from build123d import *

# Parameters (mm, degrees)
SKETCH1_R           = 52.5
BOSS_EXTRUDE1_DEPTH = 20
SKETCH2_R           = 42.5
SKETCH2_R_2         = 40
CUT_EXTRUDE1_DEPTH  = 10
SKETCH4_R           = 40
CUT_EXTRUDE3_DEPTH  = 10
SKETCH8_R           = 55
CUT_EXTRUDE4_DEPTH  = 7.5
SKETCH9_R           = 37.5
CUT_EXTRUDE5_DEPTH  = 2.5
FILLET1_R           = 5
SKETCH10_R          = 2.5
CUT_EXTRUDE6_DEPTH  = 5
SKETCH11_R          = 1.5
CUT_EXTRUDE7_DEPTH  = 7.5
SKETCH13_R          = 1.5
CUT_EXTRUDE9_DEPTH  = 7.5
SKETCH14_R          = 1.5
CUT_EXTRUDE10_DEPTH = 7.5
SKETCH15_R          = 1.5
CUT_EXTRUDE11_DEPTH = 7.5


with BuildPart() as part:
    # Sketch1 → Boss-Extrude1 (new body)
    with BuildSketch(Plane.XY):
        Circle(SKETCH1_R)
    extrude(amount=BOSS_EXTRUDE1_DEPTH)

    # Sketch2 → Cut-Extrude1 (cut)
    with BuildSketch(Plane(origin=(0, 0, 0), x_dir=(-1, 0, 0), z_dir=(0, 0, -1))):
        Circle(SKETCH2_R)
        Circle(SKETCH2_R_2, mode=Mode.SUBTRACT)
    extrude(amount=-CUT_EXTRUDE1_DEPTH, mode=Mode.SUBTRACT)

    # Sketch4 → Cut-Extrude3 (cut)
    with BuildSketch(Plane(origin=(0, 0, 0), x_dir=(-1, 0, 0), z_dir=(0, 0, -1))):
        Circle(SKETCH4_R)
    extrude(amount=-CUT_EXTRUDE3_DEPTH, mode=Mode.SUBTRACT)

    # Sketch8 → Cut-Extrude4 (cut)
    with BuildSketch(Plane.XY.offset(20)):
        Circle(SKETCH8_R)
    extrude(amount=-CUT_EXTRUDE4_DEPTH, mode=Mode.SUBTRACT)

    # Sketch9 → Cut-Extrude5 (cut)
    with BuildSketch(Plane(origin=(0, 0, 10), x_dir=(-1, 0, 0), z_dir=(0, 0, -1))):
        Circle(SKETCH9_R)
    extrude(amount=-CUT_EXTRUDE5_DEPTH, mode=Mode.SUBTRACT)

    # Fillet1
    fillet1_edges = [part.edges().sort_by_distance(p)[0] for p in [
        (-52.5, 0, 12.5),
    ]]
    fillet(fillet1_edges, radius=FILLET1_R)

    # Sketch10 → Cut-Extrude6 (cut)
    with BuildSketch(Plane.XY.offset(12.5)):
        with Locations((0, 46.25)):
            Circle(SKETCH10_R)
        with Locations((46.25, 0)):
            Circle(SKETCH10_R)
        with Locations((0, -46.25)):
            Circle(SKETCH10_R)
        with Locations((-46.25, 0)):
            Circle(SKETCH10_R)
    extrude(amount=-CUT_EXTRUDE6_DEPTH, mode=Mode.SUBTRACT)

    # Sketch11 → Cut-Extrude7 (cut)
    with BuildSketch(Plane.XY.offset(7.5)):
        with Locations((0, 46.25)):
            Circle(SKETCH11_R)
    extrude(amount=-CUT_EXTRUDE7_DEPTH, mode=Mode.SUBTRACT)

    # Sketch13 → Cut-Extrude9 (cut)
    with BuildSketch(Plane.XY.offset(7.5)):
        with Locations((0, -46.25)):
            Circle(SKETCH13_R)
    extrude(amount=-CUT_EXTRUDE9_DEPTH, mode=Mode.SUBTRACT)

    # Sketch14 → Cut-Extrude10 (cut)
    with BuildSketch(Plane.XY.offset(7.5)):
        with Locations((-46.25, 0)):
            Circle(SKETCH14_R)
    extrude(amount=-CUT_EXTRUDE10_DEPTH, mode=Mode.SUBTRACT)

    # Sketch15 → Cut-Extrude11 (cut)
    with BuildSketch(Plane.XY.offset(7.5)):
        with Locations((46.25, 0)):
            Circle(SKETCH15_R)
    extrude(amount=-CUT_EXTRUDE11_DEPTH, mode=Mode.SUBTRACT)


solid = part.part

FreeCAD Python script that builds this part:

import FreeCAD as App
import Part
import Sketcher
from FreeCAD import Vector


def edges_at(feature, points):
    """Names of the edges that pass closest to the given points."""
    edges = feature.Shape.Edges
    near = lambda p: min(range(len(edges)), key=lambda i: edges[i].distToShape(Part.Vertex(*p))[0])
    return sorted({f"Edge{near(p) + 1}" for p in points})

doc = App.newDocument("Part")
params = doc.addObject("Spreadsheet::Sheet", "Params")
for row, (alias, value) in enumerate([
    ("sketch1_diameter", "105 mm"),
    ("pad1_length", "20 mm"),
    ("sketch2_diameter", "85 mm"),
    ("sketch2_diameter2", "80 mm"),
    ("pocket1_length", "10 mm"),
    ("sketch3_diameter", "80 mm"),
    ("pocket2_length", "10 mm"),
    ("sketch4_diameter", "110 mm"),
    ("pocket3_length", "7.5 mm"),
    ("sketch5_diameter", "75 mm"),
    ("pocket4_length", "2.5 mm"),
    ("fillet_radius", "5 mm"),
    ("sketch6_diameter", "5 mm"),
    ("pocket5_length", "5 mm"),
    ("sketch7_diameter", "3 mm"),
    ("pocket6_length", "7.5 mm"),
    ("sketch8_diameter", "3 mm"),
    ("pocket7_length", "7.5 mm"),
    ("sketch9_diameter", "3 mm"),
    ("pocket8_length", "7.5 mm"),
    ("sketch10_diameter", "3 mm"),
    ("pocket9_length", "7.5 mm"),
], start=1):
    params.set(f"A{row}", alias)
    params.set(f"B{row}", "=" + value)
    params.setAlias(f"B{row}", alias)

body = doc.addObject("PartDesign::Body", "Body")

# Sketch on XY plane
sketch1 = doc.addObject("Sketcher::SketchObject", "Sketch")
body.addObject(sketch1)
sketch1.AttachmentSupport = (doc.XY_Plane, [""])
sketch1.MapMode = "FlatFace"
sketch1.addGeometry(Part.Circle(Vector(0, 0, 0), Vector(0, 0, 1), 52), False)
sketch1.addConstraint([
    Sketcher.Constraint("Coincident", 0, 3, -1, 1),
    Sketcher.Constraint("Diameter", 0, 105.0),
])
sketch1.setExpression("Constraints[1]", "Params.sketch1_diameter")
pad1 = doc.addObject("PartDesign::Pad", "Pad")
body.addObject(pad1)
pad1.Profile = sketch1
pad1.setExpression("Length", "Params.pad1_length")

# Sketch on XY plane
sketch2 = doc.addObject("Sketcher::SketchObject", "Sketch001")
body.addObject(sketch2)
sketch2.AttachmentSupport = (doc.XY_Plane, [""])
sketch2.MapMode = "FlatFace"
sketch2.addGeometry([
    Part.Circle(Vector(0, 0, 0), Vector(0, 0, 1), 42),
    Part.Circle(Vector(0, 0, 0), Vector(0, 0, 1), 40),
], False)
sketch2.addConstraint([
    Sketcher.Constraint("Coincident", 0, 3, -1, 1),
    Sketcher.Constraint("Coincident", 1, 3, -1, 1),
    Sketcher.Constraint("Diameter", 0, 85.0),
    Sketcher.Constraint("Diameter", 1, 80.0),
])
sketch2.setExpression("Constraints[2]", "Params.sketch2_diameter")
sketch2.setExpression("Constraints[3]", "Params.sketch2_diameter2")
pocket1 = doc.addObject("PartDesign::Pocket", "Pocket")
body.addObject(pocket1)
pocket1.Profile = sketch2
pocket1.setExpression("Length", "Params.pocket1_length")
pocket1.Reversed = True

# Sketch on XY plane
sketch3 = doc.addObject("Sketcher::SketchObject", "Sketch002")
body.addObject(sketch3)
sketch3.AttachmentSupport = (doc.XY_Plane, [""])
sketch3.MapMode = "FlatFace"
sketch3.addGeometry(Part.Circle(Vector(0, 0, 0), Vector(0, 0, 1), 40), False)
sketch3.addConstraint([
    Sketcher.Constraint("Coincident", 0, 3, -1, 1),
    Sketcher.Constraint("Diameter", 0, 80.0),
])
sketch3.setExpression("Constraints[1]", "Params.sketch3_diameter")
pocket2 = doc.addObject("PartDesign::Pocket", "Pocket001")
body.addObject(pocket2)
pocket2.Profile = sketch3
pocket2.setExpression("Length", "Params.pocket2_length")
pocket2.Reversed = True

# Sketch on XY plane
sketch4 = doc.addObject("Sketcher::SketchObject", "Sketch003")
body.addObject(sketch4)
sketch4.AttachmentSupport = (doc.XY_Plane, [""])
sketch4.MapMode = "FlatFace"
sketch4.AttachmentOffset = App.Placement(Vector(0, 0, 20), App.Rotation())
sketch4.addGeometry(Part.Circle(Vector(0, 0, 0), Vector(0, 0, 1), 55), False)
sketch4.addConstraint([
    Sketcher.Constraint("Coincident", 0, 3, -1, 1),
    Sketcher.Constraint("Diameter", 0, 110.0),
])
sketch4.setExpression("Constraints[1]", "Params.sketch4_diameter")
pocket3 = doc.addObject("PartDesign::Pocket", "Pocket002")
body.addObject(pocket3)
pocket3.Profile = sketch4
pocket3.setExpression("Length", "Params.pocket3_length")

# Sketch on XY plane
sketch5 = doc.addObject("Sketcher::SketchObject", "Sketch004")
body.addObject(sketch5)
sketch5.AttachmentSupport = (doc.XY_Plane, [""])
sketch5.MapMode = "FlatFace"
sketch5.AttachmentOffset = App.Placement(Vector(0, 0, 10), App.Rotation())
sketch5.addGeometry(Part.Circle(Vector(0, 0, 0), Vector(0, 0, 1), 38), False)
sketch5.addConstraint([
    Sketcher.Constraint("Coincident", 0, 3, -1, 1),
    Sketcher.Constraint("Diameter", 0, 75.0),
])
sketch5.setExpression("Constraints[1]", "Params.sketch5_diameter")
pocket4 = doc.addObject("PartDesign::Pocket", "Pocket003")
body.addObject(pocket4)
pocket4.Profile = sketch5
pocket4.setExpression("Length", "Params.pocket4_length")
pocket4.Reversed = True
doc.recompute()

fillet = doc.addObject("PartDesign::Fillet", "Fillet")
body.addObject(fillet)
fillet.Base = (pocket4, edges_at(pocket4, [(-52.5, 0, 12.5)]))
fillet.setExpression("Radius", "Params.fillet_radius")

# Sketch on XY plane
sketch6 = doc.addObject("Sketcher::SketchObject", "Sketch005")
body.addObject(sketch6)
sketch6.AttachmentSupport = (doc.XY_Plane, [""])
sketch6.MapMode = "FlatFace"
sketch6.AttachmentOffset = App.Placement(Vector(0, 0, 12.5), App.Rotation())
sketch6.addGeometry([
    Part.Circle(Vector(0, 46.2, 0), Vector(0, 0, 1), 2.5),
    Part.Circle(Vector(46.2, 0, 0), Vector(0, 0, 1), 2.5),
    Part.Circle(Vector(0, -46.2, 0), Vector(0, 0, 1), 2.5),
    Part.Circle(Vector(-46.2, 0, 0), Vector(0, 0, 1), 2.5),
], False)
sketch6.addConstraint([
    Sketcher.Constraint("Equal", 0, 1),
    Sketcher.Constraint("Equal", 1, 2),
    Sketcher.Constraint("Equal", 2, 3),
    Sketcher.Constraint("Symmetric", 0, 3, 2, 3, -1, 1),
    Sketcher.Constraint("Symmetric", 1, 3, 3, 3, -1, 1),
    Sketcher.Constraint("PointOnObject", 0, 3, -2),
    Sketcher.Constraint("PointOnObject", 1, 3, -1),
    Sketcher.Constraint("Diameter", 0, 5.0),
    Sketcher.Constraint("DistanceY", 2, 3, 0, 3, 92.5),
    Sketcher.Constraint("DistanceX", 3, 3, 1, 3, 92.5),
])
sketch6.setExpression("Constraints[7]", "Params.sketch6_diameter")
pocket5 = doc.addObject("PartDesign::Pocket", "Pocket004")
body.addObject(pocket5)
pocket5.Profile = sketch6
pocket5.setExpression("Length", "Params.pocket5_length")

# Sketch on XY plane
sketch7 = doc.addObject("Sketcher::SketchObject", "Sketch006")
body.addObject(sketch7)
sketch7.AttachmentSupport = (doc.XY_Plane, [""])
sketch7.MapMode = "FlatFace"
sketch7.AttachmentOffset = App.Placement(Vector(0, 0, 7.5), App.Rotation())
sketch7.addGeometry(Part.Circle(Vector(0, 46.2, 0), Vector(0, 0, 1), 1.5), False)
sketch7.addConstraint([
    Sketcher.Constraint("PointOnObject", 0, 3, -2),
    Sketcher.Constraint("Diameter", 0, 3.0),
    Sketcher.Constraint("DistanceY", -1, 1, 0, 3, 46.25),
])
sketch7.setExpression("Constraints[1]", "Params.sketch7_diameter")
pocket6 = doc.addObject("PartDesign::Pocket", "Pocket005")
body.addObject(pocket6)
pocket6.Profile = sketch7
pocket6.setExpression("Length", "Params.pocket6_length")

# Sketch on XY plane
sketch8 = doc.addObject("Sketcher::SketchObject", "Sketch007")
body.addObject(sketch8)
sketch8.AttachmentSupport = (doc.XY_Plane, [""])
sketch8.MapMode = "FlatFace"
sketch8.AttachmentOffset = App.Placement(Vector(0, 0, 7.5), App.Rotation())
sketch8.addGeometry(Part.Circle(Vector(0, -46.2, 0), Vector(0, 0, 1), 1.5), False)
sketch8.addConstraint([
    Sketcher.Constraint("PointOnObject", 0, 3, -2),
    Sketcher.Constraint("Diameter", 0, 3.0),
    Sketcher.Constraint("DistanceY", 0, 3, -1, 1, 46.25),
])
sketch8.setExpression("Constraints[1]", "Params.sketch8_diameter")
pocket7 = doc.addObject("PartDesign::Pocket", "Pocket006")
body.addObject(pocket7)
pocket7.Profile = sketch8
pocket7.setExpression("Length", "Params.pocket7_length")

# Sketch on XY plane
sketch9 = doc.addObject("Sketcher::SketchObject", "Sketch008")
body.addObject(sketch9)
sketch9.AttachmentSupport = (doc.XY_Plane, [""])
sketch9.MapMode = "FlatFace"
sketch9.AttachmentOffset = App.Placement(Vector(0, 0, 7.5), App.Rotation())
sketch9.addGeometry(Part.Circle(Vector(-46.2, 0, 0), Vector(0, 0, 1), 1.5), False)
sketch9.addConstraint([
    Sketcher.Constraint("PointOnObject", 0, 3, -1),
    Sketcher.Constraint("Diameter", 0, 3.0),
    Sketcher.Constraint("DistanceX", 0, 3, -1, 1, 46.25),
])
sketch9.setExpression("Constraints[1]", "Params.sketch9_diameter")
pocket8 = doc.addObject("PartDesign::Pocket", "Pocket007")
body.addObject(pocket8)
pocket8.Profile = sketch9
pocket8.setExpression("Length", "Params.pocket8_length")

# Sketch on XY plane
sketch10 = doc.addObject("Sketcher::SketchObject", "Sketch009")
body.addObject(sketch10)
sketch10.AttachmentSupport = (doc.XY_Plane, [""])
sketch10.MapMode = "FlatFace"
sketch10.AttachmentOffset = App.Placement(Vector(0, 0, 7.5), App.Rotation())
sketch10.addGeometry(Part.Circle(Vector(46.2, 0, 0), Vector(0, 0, 1), 1.5), False)
sketch10.addConstraint([
    Sketcher.Constraint("PointOnObject", 0, 3, -1),
    Sketcher.Constraint("Diameter", 0, 3.0),
    Sketcher.Constraint("DistanceX", -1, 1, 0, 3, 46.25),
])
sketch10.setExpression("Constraints[1]", "Params.sketch10_diameter")
pocket9 = doc.addObject("PartDesign::Pocket", "Pocket008")
body.addObject(pocket9)
pocket9.Profile = sketch10
pocket9.setExpression("Length", "Params.pocket9_length")

doc.recompute()
